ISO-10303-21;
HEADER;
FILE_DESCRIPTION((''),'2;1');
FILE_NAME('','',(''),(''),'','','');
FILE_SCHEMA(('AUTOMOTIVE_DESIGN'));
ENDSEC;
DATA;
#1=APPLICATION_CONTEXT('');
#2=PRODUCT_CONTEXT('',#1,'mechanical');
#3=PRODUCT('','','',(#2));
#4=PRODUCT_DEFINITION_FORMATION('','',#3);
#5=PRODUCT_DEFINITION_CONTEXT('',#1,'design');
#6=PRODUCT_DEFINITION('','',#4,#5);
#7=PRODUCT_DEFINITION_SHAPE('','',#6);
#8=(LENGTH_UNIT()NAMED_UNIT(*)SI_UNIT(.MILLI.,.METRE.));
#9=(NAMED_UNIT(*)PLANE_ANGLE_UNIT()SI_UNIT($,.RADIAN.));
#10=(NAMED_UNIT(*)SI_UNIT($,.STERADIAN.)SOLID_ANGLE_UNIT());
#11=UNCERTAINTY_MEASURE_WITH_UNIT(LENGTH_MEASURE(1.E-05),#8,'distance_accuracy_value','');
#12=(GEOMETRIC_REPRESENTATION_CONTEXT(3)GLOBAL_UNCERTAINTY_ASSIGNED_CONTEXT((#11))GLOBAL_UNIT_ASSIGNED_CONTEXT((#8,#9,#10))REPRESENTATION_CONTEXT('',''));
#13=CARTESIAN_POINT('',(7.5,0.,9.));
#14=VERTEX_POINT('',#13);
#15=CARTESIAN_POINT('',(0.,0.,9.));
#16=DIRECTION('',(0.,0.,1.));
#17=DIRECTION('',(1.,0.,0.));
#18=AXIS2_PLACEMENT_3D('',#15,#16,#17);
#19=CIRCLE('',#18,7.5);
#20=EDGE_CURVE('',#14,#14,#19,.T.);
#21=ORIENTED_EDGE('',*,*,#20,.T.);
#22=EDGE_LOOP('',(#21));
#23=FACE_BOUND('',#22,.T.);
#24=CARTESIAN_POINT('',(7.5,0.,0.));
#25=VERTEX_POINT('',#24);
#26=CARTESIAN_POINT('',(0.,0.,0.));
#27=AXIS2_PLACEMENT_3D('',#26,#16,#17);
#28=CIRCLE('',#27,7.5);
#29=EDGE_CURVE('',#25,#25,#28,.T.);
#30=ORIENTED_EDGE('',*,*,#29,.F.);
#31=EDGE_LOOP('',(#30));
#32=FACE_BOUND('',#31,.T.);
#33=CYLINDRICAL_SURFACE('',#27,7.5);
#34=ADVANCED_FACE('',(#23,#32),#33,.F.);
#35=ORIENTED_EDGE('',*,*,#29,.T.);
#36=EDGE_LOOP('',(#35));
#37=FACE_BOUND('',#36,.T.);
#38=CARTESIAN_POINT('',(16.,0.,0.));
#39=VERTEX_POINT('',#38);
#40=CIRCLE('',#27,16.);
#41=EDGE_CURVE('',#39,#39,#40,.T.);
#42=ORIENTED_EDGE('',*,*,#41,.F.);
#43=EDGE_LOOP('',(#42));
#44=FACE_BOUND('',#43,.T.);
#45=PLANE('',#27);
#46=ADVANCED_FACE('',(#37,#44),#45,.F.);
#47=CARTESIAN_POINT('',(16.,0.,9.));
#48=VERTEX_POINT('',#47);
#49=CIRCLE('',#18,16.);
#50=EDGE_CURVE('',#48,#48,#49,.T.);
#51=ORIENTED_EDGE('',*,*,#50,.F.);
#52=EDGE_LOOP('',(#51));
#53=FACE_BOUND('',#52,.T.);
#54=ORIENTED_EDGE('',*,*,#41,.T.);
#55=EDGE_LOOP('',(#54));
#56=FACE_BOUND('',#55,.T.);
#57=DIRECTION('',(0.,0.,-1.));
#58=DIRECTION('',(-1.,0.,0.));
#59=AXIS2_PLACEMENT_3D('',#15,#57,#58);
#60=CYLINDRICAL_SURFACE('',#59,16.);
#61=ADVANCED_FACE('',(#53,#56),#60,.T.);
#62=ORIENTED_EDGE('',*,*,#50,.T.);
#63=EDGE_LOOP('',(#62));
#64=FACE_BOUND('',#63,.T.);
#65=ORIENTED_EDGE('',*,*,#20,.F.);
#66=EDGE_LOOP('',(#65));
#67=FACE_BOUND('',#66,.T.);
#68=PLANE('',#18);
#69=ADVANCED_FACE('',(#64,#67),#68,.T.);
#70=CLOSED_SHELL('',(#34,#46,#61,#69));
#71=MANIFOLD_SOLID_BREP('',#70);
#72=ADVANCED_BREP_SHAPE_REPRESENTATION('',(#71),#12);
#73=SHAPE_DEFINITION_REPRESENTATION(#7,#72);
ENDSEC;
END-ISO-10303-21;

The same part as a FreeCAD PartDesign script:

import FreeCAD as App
import Part
import Sketcher

V = App.Vector

doc = App.newDocument("Part")
body = doc.addObject("PartDesign::Body", "Body")

# Sketch on XY plane
sketch1 = doc.addObject("Sketcher::SketchObject", "Sketch")
body.addObject(sketch1)
sketch1.AttachmentSupport = (doc.XY_Plane, [""])
sketch1.MapMode = "FlatFace"
sketch1.addGeometry(Part.Circle(V(0, 0, 0), V(0, 0, 1), 16), False)
sketch1.addConstraint([
    Sketcher.Constraint("Coincident", 0, 3, -1, 1),
    Sketcher.Constraint("Diameter", 0, 32.0),
])
pad1 = doc.addObject("PartDesign::Pad", "Pad")
body.addObject(pad1)
pad1.Profile = sketch1
pad1.Length = 9

# Sketch on XY plane
sketch2 = doc.addObject("Sketcher::SketchObject", "Sketch001")
body.addObject(sketch2)
sketch2.AttachmentSupport = (doc.XY_Plane, [""])
sketch2.MapMode = "FlatFace"
sketch2.AttachmentOffset = App.Placement(V(0, 0, 9), App.Rotation())
sketch2.addGeometry(Part.Circle(V(0, 0, 0), V(0, 0, 1), 7.5), False)
sketch2.addConstraint([
    Sketcher.Constraint("Coincident", 0, 3, -1, 1),
    Sketcher.Constraint("Diameter", 0, 15.0),
])
pocket1 = doc.addObject("PartDesign::Pocket", "Pocket")
body.addObject(pocket1)
pocket1.Profile = sketch2
pocket1.Type = "ThroughAll"

doc.recompute()
